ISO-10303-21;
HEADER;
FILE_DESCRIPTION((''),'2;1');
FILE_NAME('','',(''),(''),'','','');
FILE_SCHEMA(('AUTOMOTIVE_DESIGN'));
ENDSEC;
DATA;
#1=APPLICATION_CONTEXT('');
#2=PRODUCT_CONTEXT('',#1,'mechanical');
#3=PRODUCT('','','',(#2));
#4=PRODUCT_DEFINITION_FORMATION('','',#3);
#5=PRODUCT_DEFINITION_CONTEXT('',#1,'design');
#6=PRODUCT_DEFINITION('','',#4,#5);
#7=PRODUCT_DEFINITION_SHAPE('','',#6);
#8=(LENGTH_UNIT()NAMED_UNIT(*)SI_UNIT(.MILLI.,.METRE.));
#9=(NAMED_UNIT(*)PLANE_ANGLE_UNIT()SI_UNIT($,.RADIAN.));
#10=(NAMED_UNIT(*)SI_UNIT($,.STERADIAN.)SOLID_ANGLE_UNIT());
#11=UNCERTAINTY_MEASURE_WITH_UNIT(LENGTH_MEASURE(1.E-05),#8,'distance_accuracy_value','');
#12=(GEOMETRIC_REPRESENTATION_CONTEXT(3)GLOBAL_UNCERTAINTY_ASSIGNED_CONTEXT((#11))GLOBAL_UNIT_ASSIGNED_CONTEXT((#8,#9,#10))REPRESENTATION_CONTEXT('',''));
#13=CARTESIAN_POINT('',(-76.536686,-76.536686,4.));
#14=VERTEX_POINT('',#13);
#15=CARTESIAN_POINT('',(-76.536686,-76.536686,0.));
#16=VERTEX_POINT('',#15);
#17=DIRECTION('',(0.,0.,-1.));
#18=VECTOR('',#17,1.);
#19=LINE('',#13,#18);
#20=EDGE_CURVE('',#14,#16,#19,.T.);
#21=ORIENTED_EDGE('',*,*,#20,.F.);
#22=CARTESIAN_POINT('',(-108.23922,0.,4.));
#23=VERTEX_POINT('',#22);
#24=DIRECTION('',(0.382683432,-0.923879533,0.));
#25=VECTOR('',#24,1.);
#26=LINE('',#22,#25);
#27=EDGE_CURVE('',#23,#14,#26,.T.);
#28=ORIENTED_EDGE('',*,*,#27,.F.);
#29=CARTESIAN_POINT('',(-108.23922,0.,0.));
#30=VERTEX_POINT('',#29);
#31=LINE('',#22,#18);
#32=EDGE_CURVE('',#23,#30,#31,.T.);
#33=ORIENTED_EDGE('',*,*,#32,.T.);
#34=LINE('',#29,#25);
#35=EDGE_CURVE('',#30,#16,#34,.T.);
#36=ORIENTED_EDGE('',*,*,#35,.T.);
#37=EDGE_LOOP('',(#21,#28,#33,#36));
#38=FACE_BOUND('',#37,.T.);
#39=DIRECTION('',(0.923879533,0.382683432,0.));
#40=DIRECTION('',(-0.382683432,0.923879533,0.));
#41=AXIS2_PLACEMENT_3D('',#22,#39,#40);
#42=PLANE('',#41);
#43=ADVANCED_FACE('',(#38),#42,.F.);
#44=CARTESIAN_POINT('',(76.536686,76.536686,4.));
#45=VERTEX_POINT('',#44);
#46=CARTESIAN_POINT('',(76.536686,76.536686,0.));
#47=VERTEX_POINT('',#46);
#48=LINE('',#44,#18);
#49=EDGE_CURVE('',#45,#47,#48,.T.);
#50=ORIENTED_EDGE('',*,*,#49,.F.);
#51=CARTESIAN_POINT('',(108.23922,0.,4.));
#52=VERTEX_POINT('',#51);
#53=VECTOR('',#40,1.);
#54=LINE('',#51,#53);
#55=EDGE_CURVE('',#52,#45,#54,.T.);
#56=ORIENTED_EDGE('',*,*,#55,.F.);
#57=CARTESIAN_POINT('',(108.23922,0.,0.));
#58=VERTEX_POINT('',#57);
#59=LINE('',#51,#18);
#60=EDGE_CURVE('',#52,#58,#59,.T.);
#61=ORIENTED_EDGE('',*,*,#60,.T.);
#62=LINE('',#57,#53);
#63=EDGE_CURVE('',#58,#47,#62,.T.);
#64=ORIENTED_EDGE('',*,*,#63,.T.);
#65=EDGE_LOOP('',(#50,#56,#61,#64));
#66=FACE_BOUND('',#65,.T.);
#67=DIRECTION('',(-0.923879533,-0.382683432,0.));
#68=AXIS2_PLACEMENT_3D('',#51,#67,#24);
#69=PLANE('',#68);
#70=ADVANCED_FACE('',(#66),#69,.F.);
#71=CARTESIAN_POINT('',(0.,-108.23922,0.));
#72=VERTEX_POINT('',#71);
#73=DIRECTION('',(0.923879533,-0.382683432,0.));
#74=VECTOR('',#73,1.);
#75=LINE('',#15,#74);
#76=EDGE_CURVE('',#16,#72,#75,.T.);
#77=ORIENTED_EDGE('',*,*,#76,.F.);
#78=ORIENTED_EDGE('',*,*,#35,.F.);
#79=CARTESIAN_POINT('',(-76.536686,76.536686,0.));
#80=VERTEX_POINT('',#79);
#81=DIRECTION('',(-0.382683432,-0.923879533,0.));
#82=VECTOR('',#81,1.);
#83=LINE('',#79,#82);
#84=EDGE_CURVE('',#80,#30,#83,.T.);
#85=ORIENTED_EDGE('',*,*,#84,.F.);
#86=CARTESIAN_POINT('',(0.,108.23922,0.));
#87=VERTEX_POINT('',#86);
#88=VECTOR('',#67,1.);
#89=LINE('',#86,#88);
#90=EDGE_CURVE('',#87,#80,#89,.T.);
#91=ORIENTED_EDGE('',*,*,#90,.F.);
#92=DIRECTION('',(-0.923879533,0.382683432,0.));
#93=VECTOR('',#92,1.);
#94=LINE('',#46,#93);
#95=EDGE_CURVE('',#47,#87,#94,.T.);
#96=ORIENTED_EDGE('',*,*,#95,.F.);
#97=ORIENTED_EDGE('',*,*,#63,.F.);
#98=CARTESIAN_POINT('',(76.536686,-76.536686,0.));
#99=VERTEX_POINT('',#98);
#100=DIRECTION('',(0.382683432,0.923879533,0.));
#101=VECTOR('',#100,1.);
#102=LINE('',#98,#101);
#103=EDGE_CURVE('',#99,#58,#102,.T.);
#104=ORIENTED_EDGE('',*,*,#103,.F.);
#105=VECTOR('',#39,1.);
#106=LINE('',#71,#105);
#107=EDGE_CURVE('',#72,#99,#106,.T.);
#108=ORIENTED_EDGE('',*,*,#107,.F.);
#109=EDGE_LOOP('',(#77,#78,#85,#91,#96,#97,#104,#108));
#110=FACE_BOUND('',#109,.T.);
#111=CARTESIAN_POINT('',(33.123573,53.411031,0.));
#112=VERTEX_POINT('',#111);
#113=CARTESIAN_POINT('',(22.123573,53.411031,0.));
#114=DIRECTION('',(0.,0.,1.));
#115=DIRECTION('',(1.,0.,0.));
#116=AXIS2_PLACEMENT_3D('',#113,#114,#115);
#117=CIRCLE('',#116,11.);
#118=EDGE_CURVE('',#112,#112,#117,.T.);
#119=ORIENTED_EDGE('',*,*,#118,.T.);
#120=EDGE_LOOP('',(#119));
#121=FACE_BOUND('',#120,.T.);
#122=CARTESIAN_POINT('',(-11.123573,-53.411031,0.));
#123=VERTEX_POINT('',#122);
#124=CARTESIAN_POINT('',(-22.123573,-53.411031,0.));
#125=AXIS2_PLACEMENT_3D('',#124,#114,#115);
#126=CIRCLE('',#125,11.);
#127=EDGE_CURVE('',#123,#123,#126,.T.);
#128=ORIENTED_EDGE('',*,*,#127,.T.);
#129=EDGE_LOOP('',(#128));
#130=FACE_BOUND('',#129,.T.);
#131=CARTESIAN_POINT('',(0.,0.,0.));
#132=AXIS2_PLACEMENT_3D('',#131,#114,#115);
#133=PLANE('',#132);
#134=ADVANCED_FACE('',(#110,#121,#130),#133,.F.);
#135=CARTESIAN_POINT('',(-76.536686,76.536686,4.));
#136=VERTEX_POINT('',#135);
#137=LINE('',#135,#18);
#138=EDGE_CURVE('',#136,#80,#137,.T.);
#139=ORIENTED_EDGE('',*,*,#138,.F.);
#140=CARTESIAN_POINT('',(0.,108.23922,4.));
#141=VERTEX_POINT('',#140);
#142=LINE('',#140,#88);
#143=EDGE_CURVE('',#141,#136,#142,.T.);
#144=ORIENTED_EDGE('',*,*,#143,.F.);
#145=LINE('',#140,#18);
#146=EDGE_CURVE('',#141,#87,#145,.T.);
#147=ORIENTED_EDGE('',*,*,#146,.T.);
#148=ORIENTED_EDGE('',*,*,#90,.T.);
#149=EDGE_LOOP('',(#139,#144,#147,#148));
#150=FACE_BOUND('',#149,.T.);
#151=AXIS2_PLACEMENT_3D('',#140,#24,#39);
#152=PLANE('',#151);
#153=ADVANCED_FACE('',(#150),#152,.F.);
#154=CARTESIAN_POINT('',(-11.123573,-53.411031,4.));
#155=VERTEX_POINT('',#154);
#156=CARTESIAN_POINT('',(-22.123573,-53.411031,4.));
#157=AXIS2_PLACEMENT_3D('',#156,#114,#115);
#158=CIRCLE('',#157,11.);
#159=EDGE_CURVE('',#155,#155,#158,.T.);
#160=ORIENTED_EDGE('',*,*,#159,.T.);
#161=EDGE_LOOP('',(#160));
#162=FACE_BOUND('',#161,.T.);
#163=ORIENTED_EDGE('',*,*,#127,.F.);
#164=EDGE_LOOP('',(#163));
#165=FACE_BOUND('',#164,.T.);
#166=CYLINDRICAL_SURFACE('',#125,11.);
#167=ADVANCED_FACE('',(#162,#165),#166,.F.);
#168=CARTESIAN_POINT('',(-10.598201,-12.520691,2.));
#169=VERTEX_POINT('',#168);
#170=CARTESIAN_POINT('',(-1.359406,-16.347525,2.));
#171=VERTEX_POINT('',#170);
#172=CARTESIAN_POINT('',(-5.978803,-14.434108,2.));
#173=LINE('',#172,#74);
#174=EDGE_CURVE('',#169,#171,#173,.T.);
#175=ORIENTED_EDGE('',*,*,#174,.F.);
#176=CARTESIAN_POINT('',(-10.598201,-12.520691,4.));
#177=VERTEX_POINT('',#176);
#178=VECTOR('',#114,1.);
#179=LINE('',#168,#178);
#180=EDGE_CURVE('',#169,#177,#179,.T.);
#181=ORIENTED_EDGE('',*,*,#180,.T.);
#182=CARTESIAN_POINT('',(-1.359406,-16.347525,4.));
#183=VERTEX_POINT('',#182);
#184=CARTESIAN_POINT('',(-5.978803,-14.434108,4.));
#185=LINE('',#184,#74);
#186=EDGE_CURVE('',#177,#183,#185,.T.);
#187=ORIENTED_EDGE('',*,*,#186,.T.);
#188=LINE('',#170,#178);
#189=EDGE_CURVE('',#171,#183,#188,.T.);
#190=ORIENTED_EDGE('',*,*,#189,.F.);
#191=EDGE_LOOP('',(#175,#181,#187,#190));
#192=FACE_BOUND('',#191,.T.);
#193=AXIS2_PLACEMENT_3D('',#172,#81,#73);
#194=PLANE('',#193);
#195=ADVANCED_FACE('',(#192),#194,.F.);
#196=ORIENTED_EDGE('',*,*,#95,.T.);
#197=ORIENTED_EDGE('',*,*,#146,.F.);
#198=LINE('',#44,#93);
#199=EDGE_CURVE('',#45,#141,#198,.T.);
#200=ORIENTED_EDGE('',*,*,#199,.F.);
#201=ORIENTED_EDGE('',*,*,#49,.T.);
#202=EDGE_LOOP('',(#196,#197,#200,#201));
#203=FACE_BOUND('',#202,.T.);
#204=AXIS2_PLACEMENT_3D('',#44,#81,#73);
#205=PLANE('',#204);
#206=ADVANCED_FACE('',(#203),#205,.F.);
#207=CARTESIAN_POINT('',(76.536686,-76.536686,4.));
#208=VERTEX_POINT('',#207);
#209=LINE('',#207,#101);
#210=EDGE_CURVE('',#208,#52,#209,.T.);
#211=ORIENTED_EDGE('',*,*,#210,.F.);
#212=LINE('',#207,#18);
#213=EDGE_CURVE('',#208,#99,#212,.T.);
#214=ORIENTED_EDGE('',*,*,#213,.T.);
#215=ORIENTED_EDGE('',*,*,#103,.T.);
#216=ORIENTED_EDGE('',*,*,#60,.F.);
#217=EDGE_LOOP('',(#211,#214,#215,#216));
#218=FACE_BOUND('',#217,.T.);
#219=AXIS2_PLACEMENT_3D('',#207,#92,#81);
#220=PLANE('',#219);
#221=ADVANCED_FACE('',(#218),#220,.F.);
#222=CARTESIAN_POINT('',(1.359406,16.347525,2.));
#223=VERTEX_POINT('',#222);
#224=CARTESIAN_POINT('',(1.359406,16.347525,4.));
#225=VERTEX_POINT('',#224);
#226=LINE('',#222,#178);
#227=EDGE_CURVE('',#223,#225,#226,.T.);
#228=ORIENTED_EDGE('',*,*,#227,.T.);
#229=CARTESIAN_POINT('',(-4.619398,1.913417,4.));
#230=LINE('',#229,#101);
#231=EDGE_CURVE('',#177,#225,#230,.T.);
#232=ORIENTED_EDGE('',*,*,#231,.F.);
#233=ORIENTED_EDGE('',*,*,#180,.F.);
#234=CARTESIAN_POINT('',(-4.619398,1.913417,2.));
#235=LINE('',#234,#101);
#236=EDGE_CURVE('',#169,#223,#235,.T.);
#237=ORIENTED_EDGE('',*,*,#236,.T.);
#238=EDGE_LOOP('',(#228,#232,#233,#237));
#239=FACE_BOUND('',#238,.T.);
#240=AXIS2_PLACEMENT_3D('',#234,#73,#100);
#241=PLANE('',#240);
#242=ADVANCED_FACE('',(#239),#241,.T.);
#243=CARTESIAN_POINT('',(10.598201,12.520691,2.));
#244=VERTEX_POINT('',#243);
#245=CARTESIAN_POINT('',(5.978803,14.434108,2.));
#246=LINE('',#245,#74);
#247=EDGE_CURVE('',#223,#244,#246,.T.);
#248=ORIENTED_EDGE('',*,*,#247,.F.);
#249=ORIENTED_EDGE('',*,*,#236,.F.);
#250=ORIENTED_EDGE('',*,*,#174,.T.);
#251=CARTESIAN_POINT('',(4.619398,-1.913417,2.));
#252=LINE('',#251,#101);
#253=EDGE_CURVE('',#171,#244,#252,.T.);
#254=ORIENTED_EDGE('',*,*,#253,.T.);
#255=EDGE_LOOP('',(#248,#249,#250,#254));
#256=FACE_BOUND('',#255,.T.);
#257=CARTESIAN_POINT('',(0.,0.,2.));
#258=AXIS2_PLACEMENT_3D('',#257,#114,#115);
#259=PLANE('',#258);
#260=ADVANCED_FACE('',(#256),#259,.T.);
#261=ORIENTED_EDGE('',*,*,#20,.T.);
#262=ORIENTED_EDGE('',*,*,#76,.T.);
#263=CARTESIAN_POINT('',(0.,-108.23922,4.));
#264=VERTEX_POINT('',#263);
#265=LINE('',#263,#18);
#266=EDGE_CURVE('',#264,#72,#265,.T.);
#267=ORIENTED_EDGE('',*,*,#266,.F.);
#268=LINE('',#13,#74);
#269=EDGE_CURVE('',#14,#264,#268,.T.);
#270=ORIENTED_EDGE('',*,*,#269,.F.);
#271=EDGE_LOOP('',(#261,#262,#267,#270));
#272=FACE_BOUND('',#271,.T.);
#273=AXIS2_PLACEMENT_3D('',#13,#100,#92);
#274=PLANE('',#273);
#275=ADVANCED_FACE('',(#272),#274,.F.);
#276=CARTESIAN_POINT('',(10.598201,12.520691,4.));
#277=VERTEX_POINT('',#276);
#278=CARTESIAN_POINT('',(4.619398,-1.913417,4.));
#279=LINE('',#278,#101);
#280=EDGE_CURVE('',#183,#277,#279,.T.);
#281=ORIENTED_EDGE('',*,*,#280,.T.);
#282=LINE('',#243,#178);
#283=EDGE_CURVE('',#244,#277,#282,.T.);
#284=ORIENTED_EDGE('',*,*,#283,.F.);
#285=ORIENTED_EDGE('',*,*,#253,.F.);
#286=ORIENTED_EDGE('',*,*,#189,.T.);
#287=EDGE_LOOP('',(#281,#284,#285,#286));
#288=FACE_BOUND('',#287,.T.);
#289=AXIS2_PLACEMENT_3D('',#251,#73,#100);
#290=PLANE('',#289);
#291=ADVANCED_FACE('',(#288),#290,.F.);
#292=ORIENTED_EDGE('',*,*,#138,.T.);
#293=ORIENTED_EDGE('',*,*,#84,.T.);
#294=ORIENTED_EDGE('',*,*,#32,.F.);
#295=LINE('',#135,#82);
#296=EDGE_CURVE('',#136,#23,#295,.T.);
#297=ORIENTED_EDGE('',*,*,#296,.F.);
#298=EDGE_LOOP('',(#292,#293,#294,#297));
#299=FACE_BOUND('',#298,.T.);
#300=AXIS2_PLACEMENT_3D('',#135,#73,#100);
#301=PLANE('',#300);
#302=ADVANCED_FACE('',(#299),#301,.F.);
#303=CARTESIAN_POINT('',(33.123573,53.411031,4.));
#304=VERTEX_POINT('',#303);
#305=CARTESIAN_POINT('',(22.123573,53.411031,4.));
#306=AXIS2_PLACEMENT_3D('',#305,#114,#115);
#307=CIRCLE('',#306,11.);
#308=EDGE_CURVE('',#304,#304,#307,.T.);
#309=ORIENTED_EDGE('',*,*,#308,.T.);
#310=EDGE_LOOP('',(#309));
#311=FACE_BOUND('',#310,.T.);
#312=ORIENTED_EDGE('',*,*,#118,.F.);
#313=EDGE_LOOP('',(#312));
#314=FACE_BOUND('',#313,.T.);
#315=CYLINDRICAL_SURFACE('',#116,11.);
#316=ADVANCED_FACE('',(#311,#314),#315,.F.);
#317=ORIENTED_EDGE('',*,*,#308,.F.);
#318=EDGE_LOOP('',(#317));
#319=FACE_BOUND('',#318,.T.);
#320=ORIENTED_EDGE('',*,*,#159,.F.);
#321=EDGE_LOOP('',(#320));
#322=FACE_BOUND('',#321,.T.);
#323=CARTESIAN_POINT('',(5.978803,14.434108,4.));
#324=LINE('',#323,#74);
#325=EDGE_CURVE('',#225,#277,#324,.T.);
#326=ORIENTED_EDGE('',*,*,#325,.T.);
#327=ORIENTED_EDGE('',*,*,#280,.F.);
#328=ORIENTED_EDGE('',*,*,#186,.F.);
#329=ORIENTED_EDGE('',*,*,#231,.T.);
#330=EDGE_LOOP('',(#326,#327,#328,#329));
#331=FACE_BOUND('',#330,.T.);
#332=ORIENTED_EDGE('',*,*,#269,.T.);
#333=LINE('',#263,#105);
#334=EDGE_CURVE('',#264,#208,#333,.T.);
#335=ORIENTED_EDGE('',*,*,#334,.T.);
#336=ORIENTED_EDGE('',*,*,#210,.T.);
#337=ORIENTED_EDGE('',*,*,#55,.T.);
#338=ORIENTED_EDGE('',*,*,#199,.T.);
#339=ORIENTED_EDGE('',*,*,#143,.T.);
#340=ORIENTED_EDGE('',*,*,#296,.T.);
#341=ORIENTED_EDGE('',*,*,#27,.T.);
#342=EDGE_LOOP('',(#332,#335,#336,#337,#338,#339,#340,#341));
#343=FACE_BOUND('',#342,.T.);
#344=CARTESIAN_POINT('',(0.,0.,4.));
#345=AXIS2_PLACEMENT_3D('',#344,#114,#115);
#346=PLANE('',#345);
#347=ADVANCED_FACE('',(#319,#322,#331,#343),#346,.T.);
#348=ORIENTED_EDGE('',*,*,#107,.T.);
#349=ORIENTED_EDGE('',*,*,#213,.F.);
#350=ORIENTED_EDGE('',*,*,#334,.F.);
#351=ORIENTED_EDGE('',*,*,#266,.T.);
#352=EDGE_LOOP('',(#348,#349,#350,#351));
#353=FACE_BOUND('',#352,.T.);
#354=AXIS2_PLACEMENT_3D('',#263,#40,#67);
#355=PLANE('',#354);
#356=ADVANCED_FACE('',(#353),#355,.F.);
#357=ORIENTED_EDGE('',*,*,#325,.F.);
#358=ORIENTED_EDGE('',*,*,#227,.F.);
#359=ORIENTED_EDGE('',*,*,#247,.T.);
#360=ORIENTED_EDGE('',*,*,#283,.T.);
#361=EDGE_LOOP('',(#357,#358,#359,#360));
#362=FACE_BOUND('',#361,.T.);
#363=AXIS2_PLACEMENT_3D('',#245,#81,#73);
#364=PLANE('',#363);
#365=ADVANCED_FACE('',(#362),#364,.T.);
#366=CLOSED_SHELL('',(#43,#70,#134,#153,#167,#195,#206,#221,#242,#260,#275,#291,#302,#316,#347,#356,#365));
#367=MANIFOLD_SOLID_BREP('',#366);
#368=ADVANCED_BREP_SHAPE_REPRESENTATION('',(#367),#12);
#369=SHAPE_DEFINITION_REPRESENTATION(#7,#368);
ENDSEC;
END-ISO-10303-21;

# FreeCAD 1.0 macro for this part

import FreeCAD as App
import Part
import Sketcher
from FreeCAD import Vector
Q = App.Units.Quantity


def add_polygon(sketch, points):
    """Adds a closed chain of lines whose ends are joined by coincident constraints."""
    first, n = sketch.GeometryCount, len(points)
    for a, b in zip(points, points[1:] + points[:1]):
        sketch.addGeometry(Part.LineSegment(App.Vector(*a, 0), App.Vector(*b, 0)), False)
    for i in range(n):
        sketch.addConstraint(Sketcher.Constraint("Coincident", first + i, 2, first + (i + 1) % n, 1))

doc = App.newDocument("Part")
params = doc.addObject("Spreadsheet::Sheet", "Params")
for row, (alias, value) in enumerate([
    ("pad1_length", "4 mm"),
    ("sketch2_length", "10 mm"),
    ("pocket1_length", "2 mm"),
    ("sketch3_diameter", "22 mm"),
], start=1):
    params.set(f"A{row}", alias)
    params.set(f"B{row}", "=" + value)
    params.setAlias(f"B{row}", alias)

body = doc.addObject("PartDesign::Body", "Body")

sketch1 = body.newObject("Sketcher::SketchObject", "Sketch")
sketch1.AttachmentSupport = (doc.getObject("XY_Plane"), [""])
sketch1.MapMode = "FlatFace"
add_polygon(sketch1, [(0, -108), (77, -77), (108, 0), (77, 77), (0, 108), (-77, 77), (-108, 0), (-77, -77)])
sketch1.addConstraint(Sketcher.Constraint("Symmetric", 0, 2, 4, 2, -1, 1))
sketch1.addConstraint(Sketcher.Constraint("Symmetric", 1, 2, 5, 2, -1, 1))
sketch1.addConstraint(Sketcher.Constraint("Symmetric", 2, 2, 6, 2, -1, 1))
sketch1.addConstraint(Sketcher.Constraint("Symmetric", 3, 2, 7, 2, -1, 1))
sketch1.addConstraint(Sketcher.Constraint("Symmetric", 2, 2, 4, 2, -2))
sketch1.addConstraint(Sketcher.Constraint("PointOnObject", 1, 2, -1))
sketch1.addConstraint(Sketcher.Constraint("PointOnObject", 3, 2, -2))
sketch1.addConstraint(Sketcher.Constraint("Perpendicular", 0, 2))
sketch1.addConstraint(Sketcher.Constraint("Equal", 0, 1))
sketch1.addConstraint(Sketcher.Constraint("Angle", 0, Q("22.5 deg")))
sketch1.addConstraint(Sketcher.Constraint("DistanceX", -1, 1, 1, 2, 108.23922))
pad1 = body.newObject("PartDesign::Pad", "Pad")
pad1.Profile = sketch1
pad1.setExpression("Length", "Params.pad1_length")

sketch2 = body.newObject("Sketcher::SketchObject", "Sketch001")
sketch2.AttachmentSupport = (doc.getObject("XY_Plane"), [""])
sketch2.MapMode = "FlatFace"
sketch2.AttachmentOffset = App.Placement(Vector(0, 0, 4), App.Rotation())
add_polygon(sketch2, [(-11, -13), (-1, -16), (11, 13), (1, 16)])
sketch2.addConstraint(Sketcher.Constraint("Symmetric", 0, 2, 2, 2, -1, 1))
sketch2.addConstraint(Sketcher.Constraint("Symmetric", 1, 2, 3, 2, -1, 1))
sketch2.addConstraint(Sketcher.Constraint("Perpendicular", 0, 1))
sketch2.addConstraint(Sketcher.Constraint("Distance", 0, 10.0))
sketch2.addConstraint(Sketcher.Constraint("Angle", 0, Q("-22.5 deg")))
sketch2.addConstraint(Sketcher.Constraint("DistanceX", -1, 1, 1, 2, 10.598201))
sketch2.setExpression("Constraints[7]", "Params.sketch2_length")
pocket1 = body.newObject("PartDesign::Pocket", "Pocket")
pocket1.Profile = sketch2
pocket1.setExpression("Length", "Params.pocket1_length")

sketch3 = body.newObject("Sketcher::SketchObject", "Sketch002")
sketch3.AttachmentSupport = (doc.getObject("XY_Plane"), [""])
sketch3.MapMode = "FlatFace"
sketch3.AttachmentOffset = App.Placement(Vector(0, 0, 4), App.Rotation())
sketch3.addGeometry(Part.Circle(Vector(-22, -53, 0), Vector(0, 0, 1), 11), False)
sketch3.addGeometry(Part.Circle(Vector(22, 53, 0), Vector(0, 0, 1), 11), False)
sketch3.addConstraint(Sketcher.Constraint("Equal", 0, 1))
sketch3.addConstraint(Sketcher.Constraint("Symmetric", 0, 3, 1, 3, -1, 1))
sketch3.addConstraint(Sketcher.Constraint("Diameter", 0, 22.0))
sketch3.addConstraint(Sketcher.Constraint("DistanceY", 0, 3, -1, 1, 53.411031))
sketch3.addConstraint(Sketcher.Constraint("DistanceX", 0, 3, -1, 1, 22.123573))
sketch3.setExpression("Constraints[2]", "Params.sketch3_diameter")
pocket2 = body.newObject("PartDesign::Pocket", "Pocket001")
pocket2.Profile = sketch3
pocket2.Type = "ThroughAll"

doc.recompute()
